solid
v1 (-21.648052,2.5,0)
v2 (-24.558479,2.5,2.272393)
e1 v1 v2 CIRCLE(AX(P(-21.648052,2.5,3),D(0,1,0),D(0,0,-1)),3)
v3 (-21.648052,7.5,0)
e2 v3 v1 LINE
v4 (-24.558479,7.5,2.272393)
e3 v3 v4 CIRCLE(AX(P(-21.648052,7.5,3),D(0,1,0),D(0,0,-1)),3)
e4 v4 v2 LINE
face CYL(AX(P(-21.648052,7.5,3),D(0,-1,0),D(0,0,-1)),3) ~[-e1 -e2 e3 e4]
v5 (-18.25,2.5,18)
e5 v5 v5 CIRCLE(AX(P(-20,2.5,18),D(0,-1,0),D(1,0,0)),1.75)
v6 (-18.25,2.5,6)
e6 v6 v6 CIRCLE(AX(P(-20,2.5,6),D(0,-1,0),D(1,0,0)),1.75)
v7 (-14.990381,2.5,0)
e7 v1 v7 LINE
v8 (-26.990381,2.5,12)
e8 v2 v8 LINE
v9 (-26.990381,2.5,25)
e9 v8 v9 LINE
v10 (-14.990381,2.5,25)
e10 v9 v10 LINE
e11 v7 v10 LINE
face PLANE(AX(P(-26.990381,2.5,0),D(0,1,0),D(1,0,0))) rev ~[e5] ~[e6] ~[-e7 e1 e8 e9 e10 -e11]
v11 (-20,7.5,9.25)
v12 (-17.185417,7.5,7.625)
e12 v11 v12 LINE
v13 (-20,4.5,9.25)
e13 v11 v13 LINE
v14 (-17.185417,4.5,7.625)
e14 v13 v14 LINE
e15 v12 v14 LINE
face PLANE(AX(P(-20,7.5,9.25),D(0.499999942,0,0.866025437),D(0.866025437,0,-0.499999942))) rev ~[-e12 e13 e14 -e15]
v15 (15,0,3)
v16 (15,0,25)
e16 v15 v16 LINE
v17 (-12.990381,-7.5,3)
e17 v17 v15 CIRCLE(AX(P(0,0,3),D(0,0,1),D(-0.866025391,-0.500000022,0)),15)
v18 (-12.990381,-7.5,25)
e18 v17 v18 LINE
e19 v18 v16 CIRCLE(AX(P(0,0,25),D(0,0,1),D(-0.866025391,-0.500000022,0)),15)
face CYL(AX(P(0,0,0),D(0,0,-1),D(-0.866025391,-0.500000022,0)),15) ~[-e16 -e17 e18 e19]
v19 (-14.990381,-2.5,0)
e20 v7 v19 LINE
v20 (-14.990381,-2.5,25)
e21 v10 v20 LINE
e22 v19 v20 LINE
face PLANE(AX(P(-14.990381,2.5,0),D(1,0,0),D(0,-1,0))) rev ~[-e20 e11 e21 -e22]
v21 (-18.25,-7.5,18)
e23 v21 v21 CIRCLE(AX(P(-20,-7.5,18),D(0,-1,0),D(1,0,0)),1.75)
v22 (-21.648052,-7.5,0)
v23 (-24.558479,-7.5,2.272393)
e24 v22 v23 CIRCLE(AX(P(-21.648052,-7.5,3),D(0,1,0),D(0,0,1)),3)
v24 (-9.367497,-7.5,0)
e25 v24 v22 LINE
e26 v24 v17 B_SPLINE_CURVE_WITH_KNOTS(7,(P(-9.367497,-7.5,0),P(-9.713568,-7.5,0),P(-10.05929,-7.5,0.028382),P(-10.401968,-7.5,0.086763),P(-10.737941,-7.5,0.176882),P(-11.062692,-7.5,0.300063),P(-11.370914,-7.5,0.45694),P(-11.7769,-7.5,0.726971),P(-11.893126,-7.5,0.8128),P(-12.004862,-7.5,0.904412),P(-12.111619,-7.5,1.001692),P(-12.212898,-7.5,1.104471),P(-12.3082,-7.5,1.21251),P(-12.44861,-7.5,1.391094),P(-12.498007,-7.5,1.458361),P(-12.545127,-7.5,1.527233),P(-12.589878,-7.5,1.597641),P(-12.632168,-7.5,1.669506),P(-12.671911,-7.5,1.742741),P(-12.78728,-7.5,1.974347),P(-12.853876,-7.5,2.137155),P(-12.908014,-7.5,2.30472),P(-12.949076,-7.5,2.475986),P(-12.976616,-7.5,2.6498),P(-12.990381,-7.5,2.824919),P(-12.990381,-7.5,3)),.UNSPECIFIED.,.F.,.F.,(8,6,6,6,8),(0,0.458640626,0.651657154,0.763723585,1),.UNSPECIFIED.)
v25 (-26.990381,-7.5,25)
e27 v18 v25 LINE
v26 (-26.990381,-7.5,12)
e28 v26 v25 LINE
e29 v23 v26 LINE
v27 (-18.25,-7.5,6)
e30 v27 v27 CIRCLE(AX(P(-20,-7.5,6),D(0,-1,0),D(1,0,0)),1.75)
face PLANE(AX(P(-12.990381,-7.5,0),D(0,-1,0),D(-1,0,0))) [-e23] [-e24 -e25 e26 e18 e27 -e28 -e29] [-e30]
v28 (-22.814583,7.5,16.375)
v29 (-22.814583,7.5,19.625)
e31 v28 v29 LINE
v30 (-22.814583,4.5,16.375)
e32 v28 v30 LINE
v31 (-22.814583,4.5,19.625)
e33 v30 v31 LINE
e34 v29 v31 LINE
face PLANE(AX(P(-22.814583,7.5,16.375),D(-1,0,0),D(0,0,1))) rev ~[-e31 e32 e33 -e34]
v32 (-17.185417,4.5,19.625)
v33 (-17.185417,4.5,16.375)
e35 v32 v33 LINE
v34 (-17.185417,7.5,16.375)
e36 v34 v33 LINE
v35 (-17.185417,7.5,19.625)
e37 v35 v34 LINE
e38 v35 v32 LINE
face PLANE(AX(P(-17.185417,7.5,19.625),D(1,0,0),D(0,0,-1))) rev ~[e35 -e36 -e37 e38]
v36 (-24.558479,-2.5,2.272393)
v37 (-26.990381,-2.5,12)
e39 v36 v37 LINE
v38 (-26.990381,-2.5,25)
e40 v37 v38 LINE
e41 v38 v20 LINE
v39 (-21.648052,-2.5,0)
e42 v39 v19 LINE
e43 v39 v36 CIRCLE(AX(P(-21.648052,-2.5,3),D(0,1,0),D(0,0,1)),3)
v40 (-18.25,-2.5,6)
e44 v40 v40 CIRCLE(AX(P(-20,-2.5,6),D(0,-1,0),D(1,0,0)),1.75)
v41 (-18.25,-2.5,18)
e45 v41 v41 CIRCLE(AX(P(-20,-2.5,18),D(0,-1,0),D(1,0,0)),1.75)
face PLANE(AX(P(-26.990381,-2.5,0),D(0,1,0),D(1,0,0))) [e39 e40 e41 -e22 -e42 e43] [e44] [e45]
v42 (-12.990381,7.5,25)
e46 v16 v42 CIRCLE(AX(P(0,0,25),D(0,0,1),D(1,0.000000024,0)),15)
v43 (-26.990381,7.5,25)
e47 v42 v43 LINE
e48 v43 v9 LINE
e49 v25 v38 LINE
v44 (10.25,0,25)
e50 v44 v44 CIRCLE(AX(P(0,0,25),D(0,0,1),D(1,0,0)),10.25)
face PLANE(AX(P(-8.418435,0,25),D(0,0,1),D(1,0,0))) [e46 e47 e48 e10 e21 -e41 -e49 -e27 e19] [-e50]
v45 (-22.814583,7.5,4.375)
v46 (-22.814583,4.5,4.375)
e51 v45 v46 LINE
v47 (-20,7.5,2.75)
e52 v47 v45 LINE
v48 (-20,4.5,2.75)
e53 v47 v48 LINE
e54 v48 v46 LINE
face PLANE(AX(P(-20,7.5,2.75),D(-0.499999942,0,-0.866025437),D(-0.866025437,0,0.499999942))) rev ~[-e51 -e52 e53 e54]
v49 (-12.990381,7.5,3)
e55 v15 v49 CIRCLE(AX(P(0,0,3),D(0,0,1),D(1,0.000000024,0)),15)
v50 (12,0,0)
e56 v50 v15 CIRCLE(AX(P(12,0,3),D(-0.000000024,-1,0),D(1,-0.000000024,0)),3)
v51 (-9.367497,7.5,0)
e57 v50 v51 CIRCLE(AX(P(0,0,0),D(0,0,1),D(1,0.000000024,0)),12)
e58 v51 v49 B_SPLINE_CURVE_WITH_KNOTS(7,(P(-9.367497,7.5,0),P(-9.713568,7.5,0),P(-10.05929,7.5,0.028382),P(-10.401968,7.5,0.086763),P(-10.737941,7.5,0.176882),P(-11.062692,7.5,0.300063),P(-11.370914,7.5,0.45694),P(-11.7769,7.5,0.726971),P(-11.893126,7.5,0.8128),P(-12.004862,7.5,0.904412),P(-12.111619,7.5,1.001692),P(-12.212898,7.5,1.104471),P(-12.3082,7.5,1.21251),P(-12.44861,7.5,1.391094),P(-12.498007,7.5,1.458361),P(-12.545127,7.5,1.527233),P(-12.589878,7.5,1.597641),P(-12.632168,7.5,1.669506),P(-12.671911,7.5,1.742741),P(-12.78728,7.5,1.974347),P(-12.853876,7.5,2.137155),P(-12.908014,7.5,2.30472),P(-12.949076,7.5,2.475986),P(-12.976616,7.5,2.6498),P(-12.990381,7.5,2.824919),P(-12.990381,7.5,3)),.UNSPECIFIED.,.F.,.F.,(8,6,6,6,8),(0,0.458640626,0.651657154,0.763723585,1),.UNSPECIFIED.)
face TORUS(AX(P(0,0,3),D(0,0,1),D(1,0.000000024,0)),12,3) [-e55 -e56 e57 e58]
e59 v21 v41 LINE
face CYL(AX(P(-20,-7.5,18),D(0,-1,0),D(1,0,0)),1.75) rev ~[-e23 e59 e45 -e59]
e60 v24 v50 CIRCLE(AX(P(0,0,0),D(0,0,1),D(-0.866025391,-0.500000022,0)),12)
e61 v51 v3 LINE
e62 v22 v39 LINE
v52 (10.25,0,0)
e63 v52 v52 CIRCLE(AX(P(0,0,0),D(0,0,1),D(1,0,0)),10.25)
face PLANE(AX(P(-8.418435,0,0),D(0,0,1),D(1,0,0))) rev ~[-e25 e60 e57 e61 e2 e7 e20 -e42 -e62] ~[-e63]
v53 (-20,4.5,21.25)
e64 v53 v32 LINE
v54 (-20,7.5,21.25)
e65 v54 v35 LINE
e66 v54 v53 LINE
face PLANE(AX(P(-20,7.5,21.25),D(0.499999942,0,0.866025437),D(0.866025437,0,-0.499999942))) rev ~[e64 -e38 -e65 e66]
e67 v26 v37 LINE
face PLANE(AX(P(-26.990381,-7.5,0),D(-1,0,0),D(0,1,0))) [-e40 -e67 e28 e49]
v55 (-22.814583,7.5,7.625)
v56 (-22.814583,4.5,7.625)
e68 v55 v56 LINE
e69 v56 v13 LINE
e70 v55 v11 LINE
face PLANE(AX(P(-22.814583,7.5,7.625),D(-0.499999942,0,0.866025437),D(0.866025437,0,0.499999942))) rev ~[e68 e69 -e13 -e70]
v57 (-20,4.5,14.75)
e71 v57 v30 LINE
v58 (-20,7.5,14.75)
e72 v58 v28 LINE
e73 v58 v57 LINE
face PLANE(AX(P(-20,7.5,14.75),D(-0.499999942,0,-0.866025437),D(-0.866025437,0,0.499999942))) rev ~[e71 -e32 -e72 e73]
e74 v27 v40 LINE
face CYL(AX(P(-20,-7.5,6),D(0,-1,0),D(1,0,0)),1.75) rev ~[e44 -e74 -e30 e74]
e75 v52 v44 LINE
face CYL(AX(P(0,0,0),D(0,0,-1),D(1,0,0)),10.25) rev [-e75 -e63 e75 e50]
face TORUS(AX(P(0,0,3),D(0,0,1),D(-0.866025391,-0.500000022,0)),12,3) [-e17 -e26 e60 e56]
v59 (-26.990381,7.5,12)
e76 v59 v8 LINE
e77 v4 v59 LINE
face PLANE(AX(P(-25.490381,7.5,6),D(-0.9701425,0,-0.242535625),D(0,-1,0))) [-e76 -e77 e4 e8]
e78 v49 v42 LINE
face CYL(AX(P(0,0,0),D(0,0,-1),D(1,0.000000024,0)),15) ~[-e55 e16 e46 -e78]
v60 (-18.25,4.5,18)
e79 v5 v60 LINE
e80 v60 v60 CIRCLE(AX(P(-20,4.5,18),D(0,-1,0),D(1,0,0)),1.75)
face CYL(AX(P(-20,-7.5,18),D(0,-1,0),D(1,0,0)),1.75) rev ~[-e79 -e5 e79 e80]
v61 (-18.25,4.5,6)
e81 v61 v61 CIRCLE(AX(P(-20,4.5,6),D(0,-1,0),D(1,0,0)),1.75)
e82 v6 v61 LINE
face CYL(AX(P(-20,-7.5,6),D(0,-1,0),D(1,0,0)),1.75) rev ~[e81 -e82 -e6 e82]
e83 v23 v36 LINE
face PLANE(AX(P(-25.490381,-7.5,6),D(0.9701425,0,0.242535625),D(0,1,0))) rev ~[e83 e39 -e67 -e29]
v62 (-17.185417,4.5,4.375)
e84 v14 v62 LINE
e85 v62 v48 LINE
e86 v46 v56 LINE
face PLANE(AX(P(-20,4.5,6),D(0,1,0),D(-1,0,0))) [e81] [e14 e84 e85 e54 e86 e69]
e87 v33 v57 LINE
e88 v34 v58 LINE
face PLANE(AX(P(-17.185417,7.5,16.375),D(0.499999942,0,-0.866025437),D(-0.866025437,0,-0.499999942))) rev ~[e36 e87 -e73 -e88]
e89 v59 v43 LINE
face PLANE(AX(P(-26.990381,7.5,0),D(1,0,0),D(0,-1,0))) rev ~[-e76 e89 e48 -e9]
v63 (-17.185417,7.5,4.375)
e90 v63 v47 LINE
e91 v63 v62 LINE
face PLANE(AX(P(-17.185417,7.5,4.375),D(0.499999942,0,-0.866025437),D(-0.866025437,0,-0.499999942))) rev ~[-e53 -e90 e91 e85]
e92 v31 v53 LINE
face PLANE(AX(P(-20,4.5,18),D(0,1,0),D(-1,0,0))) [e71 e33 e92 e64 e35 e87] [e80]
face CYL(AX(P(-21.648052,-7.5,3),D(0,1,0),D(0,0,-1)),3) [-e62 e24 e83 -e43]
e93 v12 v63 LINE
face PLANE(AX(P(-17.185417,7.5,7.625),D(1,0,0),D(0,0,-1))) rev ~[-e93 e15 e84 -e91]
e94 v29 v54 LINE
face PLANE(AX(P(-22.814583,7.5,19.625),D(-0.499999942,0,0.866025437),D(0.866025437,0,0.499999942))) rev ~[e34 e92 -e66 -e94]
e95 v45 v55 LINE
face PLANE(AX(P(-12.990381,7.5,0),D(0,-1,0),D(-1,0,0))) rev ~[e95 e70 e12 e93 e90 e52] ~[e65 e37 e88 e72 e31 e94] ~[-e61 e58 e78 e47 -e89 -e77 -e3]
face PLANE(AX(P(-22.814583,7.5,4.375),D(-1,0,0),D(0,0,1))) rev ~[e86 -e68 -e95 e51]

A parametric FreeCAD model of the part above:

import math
import FreeCAD as App
import Part
import Sketcher
from FreeCAD import Vector
Q = App.Units.Quantity


def edges_at(feature, points):
    """Names of the edges that pass closest to the given points."""
    edges = feature.Shape.Edges
    near = lambda p: min(range(len(edges)), key=lambda i: edges[i].distToShape(Part.Vertex(*p))[0])
    return sorted({f"Edge{near(p) + 1}" for p in points})

doc = App.newDocument("Part")
body = doc.addObject("PartDesign::Body", "Body")

# Sketch on XY plane
sketch1 = doc.addObject("Sketcher::SketchObject", "Sketch")
body.addObject(sketch1)
sketch1.AttachmentSupport = (doc.XY_Plane, [""])
sketch1.MapMode = "FlatFace"
sketch1.addGeometry([
    Part.ArcOfCircle(Part.Circle(Vector(0, 0, 0), Vector(0, 0, 1), 15), math.radians(0), math.radians(150)),  # 0
    Part.LineSegment(Vector(-13, 8, 0), Vector(-27, 8, 0)),  # 1
    Part.LineSegment(Vector(-27, 8, 0), Vector(-27, 2, 0)),  # 2
    Part.LineSegment(Vector(-27, 2, 0), Vector(-15, 2, 0)),  # 3
    Part.LineSegment(Vector(-15, 2, 0), Vector(-15, -2, 0)),  # 4
    Part.LineSegment(Vector(-15, -2, 0), Vector(-27, -2, 0)),  # 5
    Part.LineSegment(Vector(-27, -2, 0), Vector(-27, -8, 0)),  # 6
    Part.LineSegment(Vector(-27, -8, 0), Vector(-13, -8, 0)),  # 7
    Part.ArcOfCircle(Part.Circle(Vector(0, 0, 0), Vector(0, 0, 1), 15), math.radians(-150), math.radians(0)),  # 8
    Part.Circle(Vector(0, 0, 0), Vector(0, 0, 1), 10),  # 9
], False)
sketch1.addConstraint([
    Sketcher.Constraint("Coincident", 0, 2, 1, 1),
    Sketcher.Constraint("Coincident", 1, 2, 2, 1),
    Sketcher.Constraint("Coincident", 2, 2, 3, 1),
    Sketcher.Constraint("Coincident", 3, 2, 4, 1),
    Sketcher.Constraint("Coincident", 4, 2, 5, 1),
    Sketcher.Constraint("Coincident", 5, 2, 6, 1),
    Sketcher.Constraint("Coincident", 6, 2, 7, 1),
    Sketcher.Constraint("Coincident", 7, 2, 8, 1),
    Sketcher.Constraint("Tangent", 8, 2, 0, 1),
    Sketcher.Constraint("Horizontal", 1),
    Sketcher.Constraint("Vertical", 2),
    Sketcher.Constraint("Horizontal", 3),
    Sketcher.Constraint("Vertical", 4),
    Sketcher.Constraint("Horizontal", 5),
    Sketcher.Constraint("Vertical", 6),
    Sketcher.Constraint("Horizontal", 7),
    Sketcher.Constraint("Coincident", 0, 3, -1, 1),
    Sketcher.Constraint("Coincident", 9, 3, -1, 1),
    Sketcher.Constraint("Equal", 0, 8),
    Sketcher.Constraint("Symmetric", 2, 2, 5, 2, -1),
    Sketcher.Constraint("PointOnObject", 8, 2, -1),
    Sketcher.Constraint("Vertical", 0, 2, 7, 2),
    Sketcher.Constraint("Equal", 2, 4),
    Sketcher.Constraint("Radius", 0, Q("15 mm")),
    Sketcher.Constraint("Diameter", 9, Q("20.5 mm")),
    Sketcher.Constraint("DistanceX", 1, 2, 1, 1, Q("14 mm")),
    Sketcher.Constraint("DistanceX", 3, 1, 3, 2, Q("12 mm")),
    Sketcher.Constraint("DistanceY", 2, 2, 2, 1, Q("5 mm")),
])
pad1 = doc.addObject("PartDesign::Pad", "Pad")
body.addObject(pad1)
pad1.Profile = sketch1
pad1.Length = 25

# Sketch on XZ plane
sketch2 = doc.addObject("Sketcher::SketchObject", "Sketch001")
body.addObject(sketch2)
sketch2.AttachmentSupport = (doc.XZ_Plane, [""])
sketch2.MapMode = "FlatFace"
sketch2.AttachmentOffset = App.Placement(Vector(0, 0, 7.5), App.Rotation())
sketch2.addGeometry([
    Part.Circle(Vector(-20, 6, 0), Vector(0, 0, 1), 1.8),
    Part.Circle(Vector(-20, 18, 0), Vector(0, 0, 1), 1.8),
], False)
sketch2.addConstraint([
    Sketcher.Constraint("Equal", 0, 1),
    Sketcher.Constraint("Vertical", 0, 3, 1, 3),
    Sketcher.Constraint("Diameter", 0, Q("3.5 mm")),
    Sketcher.Constraint("DistanceX", 0, 3, -1, 1, Q("20 mm")),
    Sketcher.Constraint("DistanceY", -1, 1, 0, 3, Q("6 mm")),
    Sketcher.Constraint("DistanceY", -1, 1, 1, 3, Q("18 mm")),
])
pocket1 = doc.addObject("PartDesign::Pocket", "Pocket")
body.addObject(pocket1)
pocket1.Profile = sketch2
pocket1.Type = "ThroughAll"

# Sketch on XZ plane
sketch3 = doc.addObject("Sketcher::SketchObject", "Sketch002")
body.addObject(sketch3)
sketch3.AttachmentSupport = (doc.XZ_Plane, [""])
sketch3.MapMode = "FlatFace"
sketch3.AttachmentOffset = App.Placement(Vector(0, 0, -7.5), App.Rotation())
sketch3.addGeometry([
    Part.LineSegment(Vector(-20, 2.8, 0), Vector(-22.8, 4.4, 0)),  # 0
    Part.LineSegment(Vector(-22.8, 4.4, 0), Vector(-22.8, 7.6, 0)),  # 1
    Part.LineSegment(Vector(-22.8, 7.6, 0), Vector(-20, 9.2, 0)),  # 2
    Part.LineSegment(Vector(-20, 9.2, 0), Vector(-17.2, 7.6, 0)),  # 3
    Part.LineSegment(Vector(-17.2, 7.6, 0), Vector(-17.2, 4.4, 0)),  # 4
    Part.LineSegment(Vector(-17.2, 4.4, 0), Vector(-20, 2.8, 0)),  # 5
    Part.LineSegment(Vector(-20, 14.8, 0), Vector(-22.8, 16.4, 0)),  # 6
    Part.LineSegment(Vector(-22.8, 16.4, 0), Vector(-22.8, 19.6, 0)),  # 7
    Part.LineSegment(Vector(-22.8, 19.6, 0), Vector(-20, 21.2, 0)),  # 8
    Part.LineSegment(Vector(-20, 21.2, 0), Vector(-17.2, 19.6, 0)),  # 9
    Part.LineSegment(Vector(-17.2, 19.6, 0), Vector(-17.2, 16.4, 0)),  # 10
    Part.LineSegment(Vector(-17.2, 16.4, 0), Vector(-20, 14.8, 0)),  # 11
], False)
sketch3.addConstraint([
    Sketcher.Constraint("Coincident", 0, 2, 1, 1),
    Sketcher.Constraint("Coincident", 1, 2, 2, 1),
    Sketcher.Constraint("Coincident", 2, 2, 3, 1),
    Sketcher.Constraint("Coincident", 3, 2, 4, 1),
    Sketcher.Constraint("Coincident", 4, 2, 5, 1),
    Sketcher.Constraint("Coincident", 5, 2, 0, 1),
    Sketcher.Constraint("Coincident", 6, 2, 7, 1),
    Sketcher.Constraint("Coincident", 7, 2, 8, 1),
    Sketcher.Constraint("Coincident", 8, 2, 9, 1),
    Sketcher.Constraint("Coincident", 9, 2, 10, 1),
    Sketcher.Constraint("Coincident", 10, 2, 11, 1),
    Sketcher.Constraint("Coincident", 11, 2, 6, 1),
    Sketcher.Constraint("Vertical", 1),
    Sketcher.Constraint("Vertical", 4),
    Sketcher.Constraint("Vertical", 7),
    Sketcher.Constraint("Vertical", 10),
    Sketcher.Constraint("Parallel", 0, 3),
    Sketcher.Constraint("Parallel", 2, 5),
    Sketcher.Constraint("Parallel", 3, 6),
    Sketcher.Constraint("Parallel", 5, 8),
    Sketcher.Constraint("Parallel", 6, 9),
    Sketcher.Constraint("Parallel", 8, 11),
    Sketcher.Constraint("Horizontal", 1, 2, 3, 2),
    Sketcher.Constraint("Horizontal", 0, 2, 4, 2),
    Sketcher.Constraint("Horizontal", 7, 2, 9, 2),
    Sketcher.Constraint("Horizontal", 6, 2, 10, 2),
    Sketcher.Constraint("Vertical", 2, 2, 5, 2),
    Sketcher.Constraint("Vertical", 1, 2, 6, 2),
    Sketcher.Constraint("Vertical", 5, 2, 8, 2),
    Sketcher.Constraint("Equal", 4, 7),
    Sketcher.Constraint("Angle", 0, Q("150.000004 deg")),
    Sketcher.Constraint("DistanceX", 2, 2, -1, 1, Q("20 mm")),
    Sketcher.Constraint("DistanceY", 0, 2, 6, 2, Q("12 mm")),
    Sketcher.Constraint("DistanceY", 1, 1, 1, 2, Q("3.25 mm")),
    Sketcher.Constraint("DistanceY", 5, 2, 2, 2, Q("6.5 mm")),
    Sketcher.Constraint("DistanceY", -1, 1, 2, 2, Q("9.25 mm")),
])
pocket2 = doc.addObject("PartDesign::Pocket", "Pocket001")
body.addObject(pocket2)
pocket2.Profile = sketch3
pocket2.Length = 3
pocket2.Reversed = True
doc.recompute()

chamfer = doc.addObject("PartDesign::Chamfer", "Chamfer")
body.addObject(chamfer)
chamfer.Base = (pocket2, edges_at(pocket2, [(-26.99, 5, 0), (-26.99, -5, 0)]))
chamfer.ChamferType = "Two distances"
chamfer.Size = 3
chamfer.Size2 = 12
doc.recompute()

fillet = doc.addObject("PartDesign::Fillet", "Fillet")
body.addObject(fillet)
fillet.Base = (chamfer, edges_at(chamfer, [(-23.99, 5, 0), (-23.99, -5, 0)]))
fillet.Radius = 3
doc.recompute()

fillet2 = doc.addObject("PartDesign::Fillet", "Fillet001")
body.addObject(fillet2)
fillet2.Base = (fillet, edges_at(fillet, [(3.882, -14.489, 0), (3.882, 14.489, 0)]))
fillet2.Radius = 3

doc.recompute()
